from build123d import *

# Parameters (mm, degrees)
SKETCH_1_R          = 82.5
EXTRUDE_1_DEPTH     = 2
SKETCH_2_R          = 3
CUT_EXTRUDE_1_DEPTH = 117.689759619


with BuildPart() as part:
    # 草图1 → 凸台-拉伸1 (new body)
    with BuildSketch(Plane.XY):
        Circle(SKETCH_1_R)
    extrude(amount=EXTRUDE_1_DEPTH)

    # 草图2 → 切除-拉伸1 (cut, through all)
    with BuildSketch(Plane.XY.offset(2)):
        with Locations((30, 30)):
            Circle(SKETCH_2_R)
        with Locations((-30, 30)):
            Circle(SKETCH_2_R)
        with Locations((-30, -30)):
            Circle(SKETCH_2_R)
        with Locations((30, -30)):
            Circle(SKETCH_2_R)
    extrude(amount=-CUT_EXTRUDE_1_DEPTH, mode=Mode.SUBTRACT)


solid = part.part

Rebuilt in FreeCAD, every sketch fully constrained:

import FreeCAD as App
import Part
import Sketcher

V = App.Vector

doc = App.newDocument("Part")
body = doc.addObject("PartDesign::Body", "Body")

# Sketch on XY plane
sketch1 = body.newObject("Sketcher::SketchObject", "Sketch")
sketch1.AttachmentSupport = (doc.getObject("XY_Plane"), [""])
sketch1.MapMode = "FlatFace"
sketch1.addGeometry(Part.Circle(V(0, 0, 0), V(0, 0, 1), 82), False)
sketch1.addConstraint([
    Sketcher.Constraint("Coincident", 0, 3, -1, 1),
    Sketcher.Constraint("Diameter", 0, 165.0),
])
pad1 = body.newObject("PartDesign::Pad", "Pad")
pad1.Profile = sketch1
pad1.Length = 2

# Sketch on XY plane
sketch2 = body.newObject("Sketcher::SketchObject", "Sketch001")
sketch2.AttachmentSupport = (doc.getObject("XY_Plane"), [""])
sketch2.MapMode = "FlatFace"
sketch2.AttachmentOffset = App.Placement(V(0, 0, 2), App.Rotation())
sketch2.addGeometry([
    Part.Circle(V(30, 30, 0), V(0, 0, 1), 3),
    Part.Circle(V(-30, 30, 0), V(0, 0, 1), 3),
    Part.Circle(V(-30, -30, 0), V(0, 0, 1), 3),
    Part.Circle(V(30, -30, 0), V(0, 0, 1), 3),
], False)
sketch2.addConstraint([
    Sketcher.Constraint("Equal", 0, 1),
    Sketcher.Constraint("Equal", 1, 2),
    Sketcher.Constraint("Equal", 2, 3),
    Sketcher.Constraint("Symmetric", 0, 3, 2, 3, -1, 1),
    Sketcher.Constraint("Symmetric", 1, 3, 3, 3, -1, 1),
    Sketcher.Constraint("Symmetric", 0, 3, 1, 3, -2),
    Sketcher.Constraint("Diameter", 0, 6.0),
    Sketcher.Constraint("DistanceX", -1, 1, 0, 3, 30.0),
    Sketcher.Constraint("DistanceY", -1, 1, 0, 3, 30.0),
])
pocket1 = body.newObject("PartDesign::Pocket", "Pocket")
pocket1.Profile = sketch2
pocket1.Type = "ThroughAll"

doc.recompute()
